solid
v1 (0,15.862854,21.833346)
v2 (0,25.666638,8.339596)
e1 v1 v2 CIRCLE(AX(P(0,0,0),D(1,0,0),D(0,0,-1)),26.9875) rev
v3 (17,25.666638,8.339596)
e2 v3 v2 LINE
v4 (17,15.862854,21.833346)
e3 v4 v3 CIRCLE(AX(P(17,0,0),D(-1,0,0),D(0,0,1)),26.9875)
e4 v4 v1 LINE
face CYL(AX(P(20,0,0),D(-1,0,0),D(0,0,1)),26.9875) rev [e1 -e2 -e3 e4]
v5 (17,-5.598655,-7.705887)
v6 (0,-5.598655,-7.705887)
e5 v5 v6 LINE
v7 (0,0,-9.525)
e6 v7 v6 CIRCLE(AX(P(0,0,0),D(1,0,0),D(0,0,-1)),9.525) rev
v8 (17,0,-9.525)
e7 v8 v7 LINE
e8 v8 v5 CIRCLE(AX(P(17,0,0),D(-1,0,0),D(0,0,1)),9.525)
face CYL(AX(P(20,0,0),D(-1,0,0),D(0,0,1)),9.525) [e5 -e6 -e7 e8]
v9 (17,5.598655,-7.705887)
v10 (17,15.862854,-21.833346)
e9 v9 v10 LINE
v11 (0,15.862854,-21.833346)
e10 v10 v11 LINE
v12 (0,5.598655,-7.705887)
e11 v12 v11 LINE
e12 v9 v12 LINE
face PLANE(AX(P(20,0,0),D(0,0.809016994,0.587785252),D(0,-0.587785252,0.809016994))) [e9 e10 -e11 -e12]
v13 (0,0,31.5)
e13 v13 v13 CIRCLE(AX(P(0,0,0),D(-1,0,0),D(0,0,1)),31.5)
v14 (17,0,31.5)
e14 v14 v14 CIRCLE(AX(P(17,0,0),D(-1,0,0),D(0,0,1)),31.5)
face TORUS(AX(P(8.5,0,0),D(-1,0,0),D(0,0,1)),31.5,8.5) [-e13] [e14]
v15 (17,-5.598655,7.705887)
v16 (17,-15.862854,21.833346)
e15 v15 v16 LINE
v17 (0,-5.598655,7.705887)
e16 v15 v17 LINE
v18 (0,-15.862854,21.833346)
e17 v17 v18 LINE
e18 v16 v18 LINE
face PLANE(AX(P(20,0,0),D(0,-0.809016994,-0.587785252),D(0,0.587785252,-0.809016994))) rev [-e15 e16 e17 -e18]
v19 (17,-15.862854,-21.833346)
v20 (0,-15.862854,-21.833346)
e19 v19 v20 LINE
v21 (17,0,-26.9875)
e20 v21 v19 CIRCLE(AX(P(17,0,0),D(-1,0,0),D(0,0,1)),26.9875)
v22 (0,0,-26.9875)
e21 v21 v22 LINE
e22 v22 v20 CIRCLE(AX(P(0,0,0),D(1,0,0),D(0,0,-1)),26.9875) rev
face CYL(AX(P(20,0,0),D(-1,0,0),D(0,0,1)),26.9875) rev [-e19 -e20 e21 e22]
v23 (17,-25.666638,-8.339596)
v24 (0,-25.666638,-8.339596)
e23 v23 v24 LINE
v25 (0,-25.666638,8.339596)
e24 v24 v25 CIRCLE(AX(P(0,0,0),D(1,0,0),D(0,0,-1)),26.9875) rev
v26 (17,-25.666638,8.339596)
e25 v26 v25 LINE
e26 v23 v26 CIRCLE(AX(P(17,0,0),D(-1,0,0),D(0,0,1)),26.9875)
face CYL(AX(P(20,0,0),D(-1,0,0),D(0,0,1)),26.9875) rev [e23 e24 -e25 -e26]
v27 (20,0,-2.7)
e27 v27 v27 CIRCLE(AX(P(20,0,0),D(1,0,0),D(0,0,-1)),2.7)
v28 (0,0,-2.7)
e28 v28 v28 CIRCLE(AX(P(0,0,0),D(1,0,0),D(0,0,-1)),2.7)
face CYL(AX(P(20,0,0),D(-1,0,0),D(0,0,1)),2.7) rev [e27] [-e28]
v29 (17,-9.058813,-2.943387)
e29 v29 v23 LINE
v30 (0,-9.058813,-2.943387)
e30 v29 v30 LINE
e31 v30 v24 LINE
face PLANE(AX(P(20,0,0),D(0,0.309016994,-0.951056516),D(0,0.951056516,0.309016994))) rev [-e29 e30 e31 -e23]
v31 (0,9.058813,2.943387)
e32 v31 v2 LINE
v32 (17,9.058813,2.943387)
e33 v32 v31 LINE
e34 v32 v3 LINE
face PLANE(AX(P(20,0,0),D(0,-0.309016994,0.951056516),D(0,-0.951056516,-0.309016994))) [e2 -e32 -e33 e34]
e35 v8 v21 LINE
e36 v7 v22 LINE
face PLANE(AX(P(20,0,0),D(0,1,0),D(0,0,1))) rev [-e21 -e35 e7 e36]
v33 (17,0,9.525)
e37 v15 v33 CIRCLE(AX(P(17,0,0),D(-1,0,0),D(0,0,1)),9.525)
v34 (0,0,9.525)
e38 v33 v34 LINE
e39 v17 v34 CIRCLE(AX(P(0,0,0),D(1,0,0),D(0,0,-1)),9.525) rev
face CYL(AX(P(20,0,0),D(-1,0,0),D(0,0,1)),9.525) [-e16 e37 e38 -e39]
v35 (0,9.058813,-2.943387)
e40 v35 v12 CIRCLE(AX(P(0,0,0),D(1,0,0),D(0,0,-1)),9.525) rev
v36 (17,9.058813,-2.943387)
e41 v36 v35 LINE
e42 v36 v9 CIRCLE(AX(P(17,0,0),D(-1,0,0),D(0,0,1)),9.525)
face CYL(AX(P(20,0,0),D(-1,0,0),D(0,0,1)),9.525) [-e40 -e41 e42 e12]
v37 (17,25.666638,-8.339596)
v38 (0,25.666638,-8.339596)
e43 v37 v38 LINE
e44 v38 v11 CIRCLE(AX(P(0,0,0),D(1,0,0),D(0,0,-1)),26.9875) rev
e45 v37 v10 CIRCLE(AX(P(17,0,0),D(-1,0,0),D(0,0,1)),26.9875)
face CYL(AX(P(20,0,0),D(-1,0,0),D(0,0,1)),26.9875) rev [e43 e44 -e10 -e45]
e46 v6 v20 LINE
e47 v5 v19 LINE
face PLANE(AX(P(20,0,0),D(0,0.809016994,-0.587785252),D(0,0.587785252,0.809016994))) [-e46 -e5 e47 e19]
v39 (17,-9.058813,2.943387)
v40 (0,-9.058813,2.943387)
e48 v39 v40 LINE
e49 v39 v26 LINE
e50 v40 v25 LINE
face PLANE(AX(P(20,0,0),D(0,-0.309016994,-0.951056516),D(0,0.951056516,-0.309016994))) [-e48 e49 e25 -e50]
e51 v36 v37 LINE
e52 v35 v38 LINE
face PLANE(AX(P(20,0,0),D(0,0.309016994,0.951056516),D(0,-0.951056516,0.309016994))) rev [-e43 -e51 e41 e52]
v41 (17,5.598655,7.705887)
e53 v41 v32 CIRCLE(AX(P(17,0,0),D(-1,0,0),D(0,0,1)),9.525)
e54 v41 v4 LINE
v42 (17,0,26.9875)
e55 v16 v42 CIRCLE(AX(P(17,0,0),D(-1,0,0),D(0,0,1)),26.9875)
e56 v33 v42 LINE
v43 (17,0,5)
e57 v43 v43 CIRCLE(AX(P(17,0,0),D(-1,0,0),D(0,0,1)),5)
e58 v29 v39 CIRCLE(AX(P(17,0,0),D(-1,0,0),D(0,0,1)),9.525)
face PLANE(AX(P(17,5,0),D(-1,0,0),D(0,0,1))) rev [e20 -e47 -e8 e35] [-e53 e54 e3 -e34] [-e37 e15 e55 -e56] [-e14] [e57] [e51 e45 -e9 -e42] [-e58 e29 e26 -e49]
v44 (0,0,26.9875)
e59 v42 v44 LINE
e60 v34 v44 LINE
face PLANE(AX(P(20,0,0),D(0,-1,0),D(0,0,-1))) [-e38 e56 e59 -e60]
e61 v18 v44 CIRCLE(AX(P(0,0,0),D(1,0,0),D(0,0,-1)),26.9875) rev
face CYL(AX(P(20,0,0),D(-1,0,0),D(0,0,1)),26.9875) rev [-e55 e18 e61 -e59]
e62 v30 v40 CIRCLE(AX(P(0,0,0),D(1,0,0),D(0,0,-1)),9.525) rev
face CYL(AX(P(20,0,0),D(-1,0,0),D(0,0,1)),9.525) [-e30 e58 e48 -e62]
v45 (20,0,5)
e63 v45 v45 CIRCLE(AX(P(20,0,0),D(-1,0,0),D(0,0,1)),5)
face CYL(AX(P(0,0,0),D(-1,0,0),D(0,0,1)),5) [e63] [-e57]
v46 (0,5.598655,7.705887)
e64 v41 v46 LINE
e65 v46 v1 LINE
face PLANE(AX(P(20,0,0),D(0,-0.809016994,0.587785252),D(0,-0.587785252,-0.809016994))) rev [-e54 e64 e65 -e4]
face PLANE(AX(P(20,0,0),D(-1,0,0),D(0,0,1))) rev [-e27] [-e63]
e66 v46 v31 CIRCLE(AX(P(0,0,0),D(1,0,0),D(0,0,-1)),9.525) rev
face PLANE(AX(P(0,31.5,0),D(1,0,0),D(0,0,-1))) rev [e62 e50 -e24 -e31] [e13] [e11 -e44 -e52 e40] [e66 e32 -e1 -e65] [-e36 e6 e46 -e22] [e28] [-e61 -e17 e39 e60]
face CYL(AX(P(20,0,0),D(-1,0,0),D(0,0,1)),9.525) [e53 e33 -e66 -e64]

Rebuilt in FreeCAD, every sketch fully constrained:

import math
import FreeCAD as App
import Part
import Sketcher

V = App.Vector
Q = App.Units.Quantity

doc = App.newDocument("Part")
params = doc.addObject("Spreadsheet::Sheet", "Params")
for row, (alias, value) in enumerate([
    ("sketch1_radius", "8.5 mm"),
    ("sketch1_width", "20 mm"),
    ("sketch1_height", "5 mm"),
    ("sketch1_height2", "31.5 mm"),
    ("revolution_angle", "360 deg"),
    ("sketch2_diameter", "5.4 mm"),
], start=1):
    params.set(f"A{row}", alias)
    params.set(f"B{row}", "=" + value)
    params.setAlias(f"B{row}", alias)

body = doc.addObject("PartDesign::Body", "Body")

# Sketch on XY plane
sketch1 = body.newObject("Sketcher::SketchObject", "Sketch")
sketch1.AttachmentSupport = (doc.getObject("XY_Plane"), [""])
sketch1.MapMode = "FlatFace"
sketch1.addGeometry([
    Part.LineSegment(V(0, 31.5, 0), V(0, 0, 0)),  # 0
    Part.LineSegment(V(0, 0, 0), V(20, 0, 0)),  # 1
    Part.LineSegment(V(20, 0, 0), V(20, 5, 0)),  # 2
    Part.LineSegment(V(20, 5, 0), V(17, 5, 0)),  # 3
    Part.LineSegment(V(17, 5, 0), V(17, 31.5, 0)),  # 4
    Part.ArcOfCircle(Part.Circle(V(8.5, 31.5, 0), V(0, 0, 1), 8.5), math.radians(0), math.radians(180)),  # 5
], False)
sketch1.addConstraint([
    Sketcher.Constraint("Coincident", 0, 2, 1, 1),
    Sketcher.Constraint("Coincident", 1, 2, 2, 1),
    Sketcher.Constraint("Coincident", 2, 2, 3, 1),
    Sketcher.Constraint("Coincident", 3, 2, 4, 1),
    Sketcher.Constraint("Tangent", 4, 2, 5, 1),
    Sketcher.Constraint("Tangent", 5, 2, 0, 1),
    Sketcher.Constraint("Vertical", 0),
    Sketcher.Constraint("Horizontal", 1),
    Sketcher.Constraint("Vertical", 2),
    Sketcher.Constraint("Horizontal", 3),
    Sketcher.Constraint("Vertical", 4),
    Sketcher.Constraint("Coincident", 0, 2, -1, 1),
    Sketcher.Constraint("Radius", 5, 8.5),
    Sketcher.Constraint("DistanceX", 1, 1, 1, 2, 20.0),
    Sketcher.Constraint("DistanceY", 2, 1, 2, 2, 5.0),
    Sketcher.Constraint("DistanceY", 0, 2, 0, 1, 31.5),
])
sketch1.setExpression("Constraints[12]", "Params.sketch1_radius")
sketch1.setExpression("Constraints[13]", "Params.sketch1_width")
sketch1.setExpression("Constraints[14]", "Params.sketch1_height")
sketch1.setExpression("Constraints[15]", "Params.sketch1_height2")
revolution = body.newObject("PartDesign::Revolution", "Revolution")
revolution.Profile = sketch1
revolution.ReferenceAxis = (sketch1, ["H_Axis"])
revolution.setExpression("Angle", "Params.revolution_angle")

# Sketch on YZ plane
sketch2 = body.newObject("Sketcher::SketchObject", "Sketch001")
sketch2.AttachmentSupport = (doc.getObject("YZ_Plane"), [""])
sketch2.MapMode = "FlatFace"
sketch2.addGeometry(Part.Circle(V(0, 0, 0), V(0, 0, 1), 2.7), False)
sketch2.addConstraint([
    Sketcher.Constraint("Coincident", 0, 3, -1, 1),
    Sketcher.Constraint("Diameter", 0, 5.4),
])
sketch2.setExpression("Constraints[1]", "Params.sketch2_diameter")
pocket1 = body.newObject("PartDesign::Pocket", "Pocket")
pocket1.Profile = sketch2
pocket1.Type = "ThroughAll"
pocket1.Reversed = True

# Sketch on YZ plane
sketch3 = body.newObject("Sketcher::SketchObject", "Sketch002")
sketch3.AttachmentSupport = (doc.getObject("YZ_Plane"), [""])
sketch3.MapMode = "FlatFace"
sketch3.addGeometry([
    Part.LineSegment(V(16, 22, 0), V(6, 8, 0)),  # 0
    Part.ArcOfCircle(Part.Circle(V(0, 0, 0), V(0, 0, 1), 10), math.radians(18), math.radians(54)),  # 1
    Part.LineSegment(V(9, 3, 0), V(26, 8, 0)),  # 2
    Part.ArcOfCircle(Part.Circle(V(0, 0, 0), V(0, 0, 1), 27), math.radians(18), math.radians(54)),  # 3
    Part.LineSegment(V(26, -8, 0), V(9, -3, 0)),  # 4
    Part.ArcOfCircle(Part.Circle(V(0, 0, 0), V(0, 0, 1), 10), math.radians(-54), math.radians(-18)),  # 5
    Part.LineSegment(V(6, -8, 0), V(16, -22, 0)),  # 6
    Part.ArcOfCircle(Part.Circle(V(0, 0, 0), V(0, 0, 1), 27), math.radians(-54), math.radians(-18)),  # 7
    Part.LineSegment(V(0, -27, 0), V(0, -10, 0)),  # 8
    Part.ArcOfCircle(Part.Circle(V(0, 0, 0), V(0, 0, 1), 10), math.radians(-126), math.radians(-90)),  # 9
    Part.LineSegment(V(-6, -8, 0), V(-16, -22, 0)),  # 10
    Part.ArcOfCircle(Part.Circle(V(0, 0, 0), V(0, 0, 1), 27), math.radians(-126), math.radians(-90)),  # 11
    Part.LineSegment(V(-26, -8, 0), V(-9, -3, 0)),  # 12
    Part.ArcOfCircle(Part.Circle(V(0, 0, 0), V(0, 0, 1), 10), math.radians(162), math.radians(198)),  # 13
    Part.LineSegment(V(-9, 3, 0), V(-26, 8, 0)),  # 14
    Part.ArcOfCircle(Part.Circle(V(0, 0, 0), V(0, 0, 1), 27), math.radians(162), math.radians(198)),  # 15
    Part.LineSegment(V(-16, 22, 0), V(-6, 8, 0)),  # 16
    Part.ArcOfCircle(Part.Circle(V(0, 0, 0), V(0, 0, 1), 10), math.radians(90), math.radians(126)),  # 17
    Part.LineSegment(V(0, 10, 0), V(0, 27, 0)),  # 18
    Part.ArcOfCircle(Part.Circle(V(0, 0, 0), V(0, 0, 1), 27), math.radians(90), math.radians(126)),  # 19
], False)
sketch3.addConstraint([
    Sketcher.Constraint("Coincident", 0, 2, 1, 2),
    Sketcher.Constraint("Coincident", 1, 1, 2, 1),
    Sketcher.Constraint("Coincident", 2, 2, 3, 1),
    Sketcher.Constraint("Coincident", 3, 2, 0, 1),
    Sketcher.Constraint("Coincident", 4, 2, 5, 2),
    Sketcher.Constraint("Coincident", 5, 1, 6, 1),
    Sketcher.Constraint("Coincident", 6, 2, 7, 1),
    Sketcher.Constraint("Coincident", 7, 2, 4, 1),
    Sketcher.Constraint("Coincident", 8, 2, 9, 2),
    Sketcher.Constraint("Coincident", 9, 1, 10, 1),
    Sketcher.Constraint("Coincident", 10, 2, 11, 1),
    Sketcher.Constraint("Coincident", 11, 2, 8, 1),
    Sketcher.Constraint("Coincident", 12, 2, 13, 2),
    Sketcher.Constraint("Coincident", 13, 1, 14, 1),
    Sketcher.Constraint("Coincident", 14, 2, 15, 1),
    Sketcher.Constraint("Coincident", 15, 2, 12, 1),
    Sketcher.Constraint("Coincident", 16, 2, 17, 2),
    Sketcher.Constraint("Coincident", 17, 1, 18, 1),
    Sketcher.Constraint("Coincident", 18, 2, 19, 1),
    Sketcher.Constraint("Coincident", 19, 2, 16, 1),
    Sketcher.Constraint("Vertical", 8),
    Sketcher.Constraint("Vertical", 18),
    Sketcher.Constraint("Coincident", 1, 3, -1, 1),
    Sketcher.Constraint("Coincident", 3, 3, -1, 1),
    Sketcher.Constraint("Coincident", 5, 3, -1, 1),
    Sketcher.Constraint("Coincident", 7, 3, -1, 1),
    Sketcher.Constraint("Coincident", 9, 3, -1, 1),
    Sketcher.Constraint("Coincident", 11, 3, -1, 1),
    Sketcher.Constraint("Coincident", 13, 3, -1, 1),
    Sketcher.Constraint("Coincident", 15, 3, -1, 1),
    Sketcher.Constraint("Coincident", 17, 3, -1, 1),
    Sketcher.Constraint("Coincident", 19, 3, -1, 1),
    Sketcher.Constraint("Equal", 1, 5),
    Sketcher.Constraint("Equal", 3, 7),
    Sketcher.Constraint("Equal", 5, 9),
    Sketcher.Constraint("Equal", 7, 11),
    Sketcher.Constraint("Equal", 9, 13),
    Sketcher.Constraint("Equal", 11, 15),
    Sketcher.Constraint("Equal", 13, 17),
    Sketcher.Constraint("Equal", 15, 19),
    Sketcher.Constraint("PointOnObject", 8, 2, -2),
    Sketcher.Constraint("PointOnObject", 17, 1, -2),
    Sketcher.Constraint("Parallel", 0, 10),
    Sketcher.Constraint("Parallel", 2, 12),
    Sketcher.Constraint("Parallel", 4, 14),
    Sketcher.Constraint("Parallel", 6, 16),
    Sketcher.Constraint("Horizontal", 5, 1, 9, 1),
    Sketcher.Constraint("Horizontal", 6, 2, 10, 2),
    Sketcher.Constraint("Horizontal", 4, 2, 12, 2),
    Sketcher.Constraint("Horizontal", 1, 1, 13, 1),
    Sketcher.Constraint("Horizontal", 2, 2, 14, 2),
    Sketcher.Constraint("Horizontal", 0, 2, 16, 2),
    Sketcher.Constraint("Vertical", 1, 1, 4, 2),
    Sketcher.Constraint("Vertical", 0, 2, 5, 1),
    Sketcher.Constraint("Angle", 0, Q("-126 deg")),
    Sketcher.Constraint("Angle", 2, Q("18 deg")),
    Sketcher.Constraint("Radius", 1, 9.525),
    Sketcher.Constraint("Radius", 3, 26.9875),
    Sketcher.Constraint("DistanceY", 1, 1, 0, 2, 4.7625),
    Sketcher.Constraint("DistanceX", 0, 2, 1, 1, 3.460159),
])
pocket2 = body.newObject("PartDesign::Pocket", "Pocket001")
pocket2.Profile = sketch3
pocket2.Type = "ThroughAll"
pocket2.Reversed = True

doc.recompute()
